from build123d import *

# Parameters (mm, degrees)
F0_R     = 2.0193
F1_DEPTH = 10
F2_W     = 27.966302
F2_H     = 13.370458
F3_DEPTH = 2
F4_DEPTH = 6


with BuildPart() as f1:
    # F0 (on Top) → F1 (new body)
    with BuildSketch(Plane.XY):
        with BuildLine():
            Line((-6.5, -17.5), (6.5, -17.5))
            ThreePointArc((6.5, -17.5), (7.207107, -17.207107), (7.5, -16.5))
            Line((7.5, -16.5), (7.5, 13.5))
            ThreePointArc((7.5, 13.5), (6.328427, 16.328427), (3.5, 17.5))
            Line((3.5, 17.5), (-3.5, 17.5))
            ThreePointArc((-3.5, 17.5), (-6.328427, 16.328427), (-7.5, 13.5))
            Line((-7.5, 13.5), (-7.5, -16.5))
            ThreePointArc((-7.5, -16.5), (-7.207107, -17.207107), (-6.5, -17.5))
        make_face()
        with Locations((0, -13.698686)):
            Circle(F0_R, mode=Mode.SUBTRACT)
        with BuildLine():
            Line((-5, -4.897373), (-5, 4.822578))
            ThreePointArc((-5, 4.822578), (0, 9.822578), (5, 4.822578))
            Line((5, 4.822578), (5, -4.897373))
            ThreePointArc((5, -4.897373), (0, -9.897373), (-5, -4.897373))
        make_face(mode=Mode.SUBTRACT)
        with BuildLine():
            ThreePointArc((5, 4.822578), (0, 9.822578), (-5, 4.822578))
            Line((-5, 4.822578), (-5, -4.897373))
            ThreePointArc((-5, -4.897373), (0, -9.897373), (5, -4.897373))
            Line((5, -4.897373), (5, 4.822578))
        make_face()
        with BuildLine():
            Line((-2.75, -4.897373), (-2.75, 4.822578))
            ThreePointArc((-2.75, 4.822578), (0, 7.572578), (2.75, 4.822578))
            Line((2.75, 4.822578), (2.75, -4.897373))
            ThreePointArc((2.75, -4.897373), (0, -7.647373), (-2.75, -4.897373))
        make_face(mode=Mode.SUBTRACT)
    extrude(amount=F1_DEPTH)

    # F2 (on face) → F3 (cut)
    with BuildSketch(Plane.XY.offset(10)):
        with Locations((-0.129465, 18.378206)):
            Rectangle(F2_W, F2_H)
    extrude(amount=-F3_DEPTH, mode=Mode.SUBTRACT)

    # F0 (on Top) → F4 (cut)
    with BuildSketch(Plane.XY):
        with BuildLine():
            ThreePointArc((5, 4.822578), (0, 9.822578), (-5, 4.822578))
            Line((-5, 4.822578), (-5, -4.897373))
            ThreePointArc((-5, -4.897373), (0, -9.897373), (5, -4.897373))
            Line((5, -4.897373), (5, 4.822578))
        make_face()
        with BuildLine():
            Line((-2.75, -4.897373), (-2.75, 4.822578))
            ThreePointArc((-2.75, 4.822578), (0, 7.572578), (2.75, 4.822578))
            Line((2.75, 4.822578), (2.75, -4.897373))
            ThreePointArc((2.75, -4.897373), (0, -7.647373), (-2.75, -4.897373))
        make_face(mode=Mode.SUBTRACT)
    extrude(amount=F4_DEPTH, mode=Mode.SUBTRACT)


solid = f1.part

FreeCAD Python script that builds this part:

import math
import FreeCAD as App
import Part
import Sketcher
Q = App.Units.Quantity


def add_polygon(sketch, points):
    """Adds a closed chain of lines whose ends are joined by coincident constraints."""
    first, n = sketch.GeometryCount, len(points)
    for a, b in zip(points, points[1:] + points[:1]):
        sketch.addGeometry(Part.LineSegment(App.Vector(*a, 0), App.Vector(*b, 0)), False)
    for i in range(n):
        sketch.addConstraint(Sketcher.Constraint("Coincident", first + i, 2, first + (i + 1) % n, 1))

doc = App.newDocument("Part")
body = doc.addObject("PartDesign::Body", "Body")

# Sketch on XY plane
sketch1 = body.newObject("Sketcher::SketchObject", "Sketch")
sketch1.AttachmentSupport = (doc.getObject("XY_Plane"), [""])
sketch1.MapMode = "FlatFace"
sketch1.addGeometry([
    Part.LineSegment(App.Vector(-6.5, -17.5, 0), App.Vector(6.5, -17.5, 0)),  # 0
    Part.ArcOfCircle(Part.Circle(App.Vector(6.5, -16.5, 0), App.Vector(0, 0, 1), 1), math.radians(-90), math.radians(0)),  # 1
    Part.LineSegment(App.Vector(7.5, -16.5, 0), App.Vector(7.5, 13.5, 0)),  # 2
    Part.ArcOfCircle(Part.Circle(App.Vector(3.5, 13.5, 0), App.Vector(0, 0, 1), 4), math.radians(0), math.radians(90)),  # 3
    Part.LineSegment(App.Vector(3.5, 17.5, 0), App.Vector(-3.5, 17.5, 0)),  # 4
    Part.ArcOfCircle(Part.Circle(App.Vector(-3.5, 13.5, 0), App.Vector(0, 0, 1), 4), math.radians(90), math.radians(180)),  # 5
    Part.LineSegment(App.Vector(-7.5, 13.5, 0), App.Vector(-7.5, -16.5, 0)),  # 6
    Part.ArcOfCircle(Part.Circle(App.Vector(-6.5, -16.5, 0), App.Vector(0, 0, 1), 1), math.radians(180), math.radians(270)),  # 7
    Part.Circle(App.Vector(0, -13.7, 0), App.Vector(0, 0, 1), 2),  # 8
    Part.ArcOfCircle(Part.Circle(App.Vector(0, -4.9, 0), App.Vector(0, 0, 1), 2.8), math.radians(180), math.radians(360)),  # 9
    Part.LineSegment(App.Vector(-2.8, -4.9, 0), App.Vector(-2.8, 4.8, 0)),  # 10
    Part.ArcOfCircle(Part.Circle(App.Vector(0, 4.8, 0), App.Vector(0, 0, 1), 2.8), math.radians(0), math.radians(180)),  # 11
    Part.LineSegment(App.Vector(2.8, 4.8, 0), App.Vector(2.8, -4.9, 0)),  # 12
], False)
sketch1.addConstraint([
    Sketcher.Constraint("Tangent", 0, 2, 1, 1),
    Sketcher.Constraint("Tangent", 1, 2, 2, 1),
    Sketcher.Constraint("Tangent", 2, 2, 3, 1),
    Sketcher.Constraint("Tangent", 3, 2, 4, 1),
    Sketcher.Constraint("Tangent", 4, 2, 5, 1),
    Sketcher.Constraint("Tangent", 5, 2, 6, 1),
    Sketcher.Constraint("Tangent", 6, 2, 7, 1),
    Sketcher.Constraint("Tangent", 7, 2, 0, 1),
    Sketcher.Constraint("Tangent", 9, 1, 10, 1),
    Sketcher.Constraint("Tangent", 10, 2, 11, 2),
    Sketcher.Constraint("Tangent", 11, 1, 12, 1),
    Sketcher.Constraint("Tangent", 12, 2, 9, 2),
    Sketcher.Constraint("Horizontal", 0),
    Sketcher.Constraint("Vertical", 2),
    Sketcher.Constraint("Horizontal", 4),
    Sketcher.Constraint("Vertical", 6),
    Sketcher.Constraint("Vertical", 10),
    Sketcher.Constraint("Vertical", 12),
    Sketcher.Constraint("Equal", 3, 5),
    Sketcher.Constraint("Equal", 1, 7),
    Sketcher.Constraint("PointOnObject", 8, 3, -2),
    Sketcher.Constraint("PointOnObject", 9, 3, -2),
    Sketcher.Constraint("Radius", 1, Q("0.999999 mm")),
    Sketcher.Constraint("Radius", 3, Q("4 mm")),
    Sketcher.Constraint("DistanceX", 0, 1, 0, 2, Q("13 mm")),
    Sketcher.Constraint("DistanceY", 2, 1, 2, 2, Q("30 mm")),
    Sketcher.Constraint("Radius", 9, Q("2.75 mm")),
    Sketcher.Constraint("Diameter", 8, Q("4.0386 mm")),
    Sketcher.Constraint("DistanceX", -1, 1, 1, 3, Q("6.500001 mm")),
    Sketcher.Constraint("DistanceY", 1, 3, -1, 1, Q("16.500001 mm")),
    Sketcher.Constraint("DistanceY", 10, 1, 10, 2, Q("9.719951 mm")),
    Sketcher.Constraint("DistanceY", 11, 3, 3, 3, Q("8.677422 mm")),
    Sketcher.Constraint("DistanceY", 8, 3, -1, 1, Q("13.698686 mm")),
])
pad1 = body.newObject("PartDesign::Pad", "Pad")
pad1.Profile = sketch1
pad1.Length = 10

# Sketch on XY plane
sketch2 = body.newObject("Sketcher::SketchObject", "Sketch001")
sketch2.AttachmentSupport = (doc.getObject("XY_Plane"), [""])
sketch2.MapMode = "FlatFace"
sketch2.AttachmentOffset = App.Placement(App.Vector(0, 0, 10), App.Rotation())
add_polygon(sketch2, [(-14, 25), (-14, 12), (14, 12), (14, 25)])  # lines 0-3
sketch2.addConstraint([
    Sketcher.Constraint("Vertical", 0),
    Sketcher.Constraint("Horizontal", 1),
    Sketcher.Constraint("Vertical", 2),
    Sketcher.Constraint("Horizontal", 3),
    Sketcher.Constraint("DistanceX", 1, 1, 1, 2, Q("27.966302 mm")),
    Sketcher.Constraint("DistanceY", 0, 2, 0, 1, Q("13.370458 mm")),
    Sketcher.Constraint("DistanceX", 0, 2, -1, 1, Q("14.112616 mm")),
    Sketcher.Constraint("DistanceY", -1, 1, 0, 2, Q("11.692977 mm")),
])
pocket1 = body.newObject("PartDesign::Pocket", "Pocket")
pocket1.Profile = sketch2
pocket1.Length = 2

# Sketch on XY plane
sketch3 = body.newObject("Sketcher::SketchObject", "Sketch002")
sketch3.AttachmentSupport = (doc.getObject("XY_Plane"), [""])
sketch3.MapMode = "FlatFace"
sketch3.addGeometry([
    Part.ArcOfCircle(Part.Circle(App.Vector(0, 4.8, 0), App.Vector(0, 0, 1), 5), math.radians(0), math.radians(180)),  # 0
    Part.LineSegment(App.Vector(-5, 4.8, 0), App.Vector(-5, -4.9, 0)),  # 1
    Part.ArcOfCircle(Part.Circle(App.Vector(0, -4.9, 0), App.Vector(0, 0, 1), 5), math.radians(180), math.radians(360)),  # 2
    Part.LineSegment(App.Vector(5, -4.9, 0), App.Vector(5, 4.8, 0)),  # 3
    Part.ArcOfCircle(Part.Circle(App.Vector(0, -4.9, 0), App.Vector(0, 0, 1), 2.8), math.radians(180), math.radians(360)),  # 4
    Part.LineSegment(App.Vector(-2.8, -4.9, 0), App.Vector(-2.8, 4.8, 0)),  # 5
    Part.ArcOfCircle(Part.Circle(App.Vector(0, 4.8, 0), App.Vector(0, 0, 1), 2.8), math.radians(0), math.radians(180)),  # 6
    Part.LineSegment(App.Vector(2.8, 4.8, 0), App.Vector(2.8, -4.9, 0)),  # 7
], False)
sketch3.addConstraint([
    Sketcher.Constraint("Tangent", 0, 2, 1, 1),
    Sketcher.Constraint("Tangent", 1, 2, 2, 1),
    Sketcher.Constraint("Tangent", 2, 2, 3, 1),
    Sketcher.Constraint("Tangent", 3, 2, 0, 1),
    Sketcher.Constraint("Tangent", 4, 1, 5, 1),
    Sketcher.Constraint("Tangent", 5, 2, 6, 2),
    Sketcher.Constraint("Tangent", 6, 1, 7, 1),
    Sketcher.Constraint("Tangent", 7, 2, 4, 2),
    Sketcher.Constraint("Vertical", 1),
    Sketcher.Constraint("Vertical", 3),
    Sketcher.Constraint("Vertical", 5),
    Sketcher.Constraint("Vertical", 7),
    Sketcher.Constraint("Coincident", 4, 3, 2, 3),
    Sketcher.Constraint("PointOnObject", 0, 3, -2),
    Sketcher.Constraint("Horizontal", 6, 3, 0, 2),
    Sketcher.Constraint("Radius", 0, Q("5 mm")),
    Sketcher.Constraint("Radius", 4, Q("2.75 mm")),
    Sketcher.Constraint("DistanceY", 1, 2, 1, 1, Q("9.719951 mm")),
    Sketcher.Constraint("DistanceY", -1, 1, 0, 2, Q("4.822578 mm")),
])
pocket2 = body.newObject("PartDesign::Pocket", "Pocket001")
pocket2.Profile = sketch3
pocket2.Length = 6
pocket2.Reversed = True

doc.recompute()
